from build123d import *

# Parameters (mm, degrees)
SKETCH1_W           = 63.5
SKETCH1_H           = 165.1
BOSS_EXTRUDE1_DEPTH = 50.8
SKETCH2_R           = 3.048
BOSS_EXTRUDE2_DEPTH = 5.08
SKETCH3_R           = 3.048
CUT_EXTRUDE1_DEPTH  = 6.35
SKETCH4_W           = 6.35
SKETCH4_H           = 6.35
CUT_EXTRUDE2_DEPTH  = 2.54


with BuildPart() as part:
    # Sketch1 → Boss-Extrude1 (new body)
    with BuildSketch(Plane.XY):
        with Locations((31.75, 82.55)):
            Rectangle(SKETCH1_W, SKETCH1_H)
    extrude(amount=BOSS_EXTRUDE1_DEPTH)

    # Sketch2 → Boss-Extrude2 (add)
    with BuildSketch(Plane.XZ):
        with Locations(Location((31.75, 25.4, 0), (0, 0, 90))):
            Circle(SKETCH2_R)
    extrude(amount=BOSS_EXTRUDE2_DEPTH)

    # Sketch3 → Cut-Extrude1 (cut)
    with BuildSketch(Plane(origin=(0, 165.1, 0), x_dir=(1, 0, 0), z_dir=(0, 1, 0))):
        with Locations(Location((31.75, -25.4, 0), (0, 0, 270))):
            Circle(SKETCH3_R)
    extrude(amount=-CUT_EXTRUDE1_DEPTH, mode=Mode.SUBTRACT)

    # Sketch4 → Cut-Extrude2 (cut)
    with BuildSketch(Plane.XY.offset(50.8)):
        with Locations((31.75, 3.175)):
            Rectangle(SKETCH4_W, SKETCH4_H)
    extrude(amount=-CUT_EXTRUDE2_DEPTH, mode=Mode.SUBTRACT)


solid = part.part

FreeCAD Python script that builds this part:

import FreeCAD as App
import Part
import Sketcher
Q = App.Units.Quantity

doc = App.newDocument("Part")
body = doc.addObject("PartDesign::Body", "Body")

# Sketch on XY plane
sketch1 = body.newObject("Sketcher::SketchObject", "Sketch")
sketch1.AttachmentSupport = (doc.getObject("XY_Plane"), [""])
sketch1.MapMode = "FlatFace"
sketch1.addGeometry([
    Part.LineSegment(App.Vector(0, 165.1, 0), App.Vector(0, 0, 0)),
    Part.LineSegment(App.Vector(0, 0, 0), App.Vector(63.5, 0, 0)),
    Part.LineSegment(App.Vector(63.5, 0, 0), App.Vector(63.5, 165.1, 0)),
    Part.LineSegment(App.Vector(63.5, 165.1, 0), App.Vector(0, 165.1, 0)),
], False)
sketch1.addConstraint([
    Sketcher.Constraint("Coincident", 0, 2, 1, 1),
    Sketcher.Constraint("Coincident", 1, 2, 2, 1),
    Sketcher.Constraint("Coincident", 2, 2, 3, 1),
    Sketcher.Constraint("Coincident", 3, 2, 0, 1),
    Sketcher.Constraint("Vertical", 0),
    Sketcher.Constraint("Horizontal", 1),
    Sketcher.Constraint("Vertical", 2),
    Sketcher.Constraint("Horizontal", 3),
    Sketcher.Constraint("Coincident", 0, 2, -1, 1),
    Sketcher.Constraint("DistanceX", 1, 1, 1, 2, Q("2.5 in")),
    Sketcher.Constraint("DistanceY", 0, 2, 0, 1, Q("6.5 in")),
])
pad1 = body.newObject("PartDesign::Pad", "Pad")
pad1.Profile = sketch1
pad1.Length = Q("2 in")

# Sketch on XZ plane
sketch2 = body.newObject("Sketcher::SketchObject", "Sketch001")
sketch2.AttachmentSupport = (doc.getObject("XZ_Plane"), [""])
sketch2.MapMode = "FlatFace"
sketch2.addGeometry(Part.Circle(App.Vector(31.75, 25.4, 0), App.Vector(0, 0, 1), 3.048), False)
sketch2.addConstraint([
    Sketcher.Constraint("Diameter", 0, Q("0.24 in")),
    Sketcher.Constraint("DistanceY", -1, 1, 0, 3, Q("1 in")),
    Sketcher.Constraint("DistanceX", -1, 1, 0, 3, Q("1.25 in")),
])
pad2 = body.newObject("PartDesign::Pad", "Pad001")
pad2.Profile = sketch2
pad2.Length = Q("0.2 in")

# Sketch on XZ plane
sketch3 = body.newObject("Sketcher::SketchObject", "Sketch002")
sketch3.AttachmentSupport = (doc.getObject("XZ_Plane"), [""])
sketch3.MapMode = "FlatFace"
sketch3.AttachmentOffset = App.Placement(App.Vector(0, 0, -6.5 * 25.4), App.Rotation())
sketch3.addGeometry(Part.Circle(App.Vector(31.75, 25.4, 0), App.Vector(0, 0, 1), 3.048), False)
sketch3.addConstraint([
    Sketcher.Constraint("Diameter", 0, Q("0.24 in")),
    Sketcher.Constraint("DistanceY", -1, 1, 0, 3, Q("1 in")),
    Sketcher.Constraint("DistanceX", -1, 1, 0, 3, Q("1.25 in")),
])
pocket1 = body.newObject("PartDesign::Pocket", "Pocket")
pocket1.Profile = sketch3
pocket1.Length = Q("0.25 in")
pocket1.Reversed = True

# Sketch on XY plane
sketch4 = body.newObject("Sketcher::SketchObject", "Sketch003")
sketch4.AttachmentSupport = (doc.getObject("XY_Plane"), [""])
sketch4.MapMode = "FlatFace"
sketch4.AttachmentOffset = App.Placement(App.Vector(0, 0, 2 * 25.4), App.Rotation())
sketch4.addGeometry([
    Part.LineSegment(App.Vector(28.575, 6.35, 0), App.Vector(28.575, 0, 0)),
    Part.LineSegment(App.Vector(28.575, 0, 0), App.Vector(34.925, 0, 0)),
    Part.LineSegment(App.Vector(34.925, 0, 0), App.Vector(34.925, 6.35, 0)),
    Part.LineSegment(App.Vector(34.925, 6.35, 0), App.Vector(28.575, 6.35, 0)),
], False)
sketch4.addConstraint([
    Sketcher.Constraint("Coincident", 0, 2, 1, 1),
    Sketcher.Constraint("Coincident", 1, 2, 2, 1),
    Sketcher.Constraint("Coincident", 2, 2, 3, 1),
    Sketcher.Constraint("Coincident", 3, 2, 0, 1),
    Sketcher.Constraint("Vertical", 0),
    Sketcher.Constraint("Horizontal", 1),
    Sketcher.Constraint("Vertical", 2),
    Sketcher.Constraint("Horizontal", 3),
    Sketcher.Constraint("PointOnObject", 0, 2, -1),
    Sketcher.Constraint("Equal", 3, 0),
    Sketcher.Constraint("DistanceX", 1, 1, 1, 2, Q("0.25 in")),
    Sketcher.Constraint("DistanceX", -1, 1, 0, 2, Q("1.125 in")),
])
pocket2 = body.newObject("PartDesign::Pocket", "Pocket001")
pocket2.Profile = sketch4
pocket2.Length = Q("0.1 in")

doc.recompute()
